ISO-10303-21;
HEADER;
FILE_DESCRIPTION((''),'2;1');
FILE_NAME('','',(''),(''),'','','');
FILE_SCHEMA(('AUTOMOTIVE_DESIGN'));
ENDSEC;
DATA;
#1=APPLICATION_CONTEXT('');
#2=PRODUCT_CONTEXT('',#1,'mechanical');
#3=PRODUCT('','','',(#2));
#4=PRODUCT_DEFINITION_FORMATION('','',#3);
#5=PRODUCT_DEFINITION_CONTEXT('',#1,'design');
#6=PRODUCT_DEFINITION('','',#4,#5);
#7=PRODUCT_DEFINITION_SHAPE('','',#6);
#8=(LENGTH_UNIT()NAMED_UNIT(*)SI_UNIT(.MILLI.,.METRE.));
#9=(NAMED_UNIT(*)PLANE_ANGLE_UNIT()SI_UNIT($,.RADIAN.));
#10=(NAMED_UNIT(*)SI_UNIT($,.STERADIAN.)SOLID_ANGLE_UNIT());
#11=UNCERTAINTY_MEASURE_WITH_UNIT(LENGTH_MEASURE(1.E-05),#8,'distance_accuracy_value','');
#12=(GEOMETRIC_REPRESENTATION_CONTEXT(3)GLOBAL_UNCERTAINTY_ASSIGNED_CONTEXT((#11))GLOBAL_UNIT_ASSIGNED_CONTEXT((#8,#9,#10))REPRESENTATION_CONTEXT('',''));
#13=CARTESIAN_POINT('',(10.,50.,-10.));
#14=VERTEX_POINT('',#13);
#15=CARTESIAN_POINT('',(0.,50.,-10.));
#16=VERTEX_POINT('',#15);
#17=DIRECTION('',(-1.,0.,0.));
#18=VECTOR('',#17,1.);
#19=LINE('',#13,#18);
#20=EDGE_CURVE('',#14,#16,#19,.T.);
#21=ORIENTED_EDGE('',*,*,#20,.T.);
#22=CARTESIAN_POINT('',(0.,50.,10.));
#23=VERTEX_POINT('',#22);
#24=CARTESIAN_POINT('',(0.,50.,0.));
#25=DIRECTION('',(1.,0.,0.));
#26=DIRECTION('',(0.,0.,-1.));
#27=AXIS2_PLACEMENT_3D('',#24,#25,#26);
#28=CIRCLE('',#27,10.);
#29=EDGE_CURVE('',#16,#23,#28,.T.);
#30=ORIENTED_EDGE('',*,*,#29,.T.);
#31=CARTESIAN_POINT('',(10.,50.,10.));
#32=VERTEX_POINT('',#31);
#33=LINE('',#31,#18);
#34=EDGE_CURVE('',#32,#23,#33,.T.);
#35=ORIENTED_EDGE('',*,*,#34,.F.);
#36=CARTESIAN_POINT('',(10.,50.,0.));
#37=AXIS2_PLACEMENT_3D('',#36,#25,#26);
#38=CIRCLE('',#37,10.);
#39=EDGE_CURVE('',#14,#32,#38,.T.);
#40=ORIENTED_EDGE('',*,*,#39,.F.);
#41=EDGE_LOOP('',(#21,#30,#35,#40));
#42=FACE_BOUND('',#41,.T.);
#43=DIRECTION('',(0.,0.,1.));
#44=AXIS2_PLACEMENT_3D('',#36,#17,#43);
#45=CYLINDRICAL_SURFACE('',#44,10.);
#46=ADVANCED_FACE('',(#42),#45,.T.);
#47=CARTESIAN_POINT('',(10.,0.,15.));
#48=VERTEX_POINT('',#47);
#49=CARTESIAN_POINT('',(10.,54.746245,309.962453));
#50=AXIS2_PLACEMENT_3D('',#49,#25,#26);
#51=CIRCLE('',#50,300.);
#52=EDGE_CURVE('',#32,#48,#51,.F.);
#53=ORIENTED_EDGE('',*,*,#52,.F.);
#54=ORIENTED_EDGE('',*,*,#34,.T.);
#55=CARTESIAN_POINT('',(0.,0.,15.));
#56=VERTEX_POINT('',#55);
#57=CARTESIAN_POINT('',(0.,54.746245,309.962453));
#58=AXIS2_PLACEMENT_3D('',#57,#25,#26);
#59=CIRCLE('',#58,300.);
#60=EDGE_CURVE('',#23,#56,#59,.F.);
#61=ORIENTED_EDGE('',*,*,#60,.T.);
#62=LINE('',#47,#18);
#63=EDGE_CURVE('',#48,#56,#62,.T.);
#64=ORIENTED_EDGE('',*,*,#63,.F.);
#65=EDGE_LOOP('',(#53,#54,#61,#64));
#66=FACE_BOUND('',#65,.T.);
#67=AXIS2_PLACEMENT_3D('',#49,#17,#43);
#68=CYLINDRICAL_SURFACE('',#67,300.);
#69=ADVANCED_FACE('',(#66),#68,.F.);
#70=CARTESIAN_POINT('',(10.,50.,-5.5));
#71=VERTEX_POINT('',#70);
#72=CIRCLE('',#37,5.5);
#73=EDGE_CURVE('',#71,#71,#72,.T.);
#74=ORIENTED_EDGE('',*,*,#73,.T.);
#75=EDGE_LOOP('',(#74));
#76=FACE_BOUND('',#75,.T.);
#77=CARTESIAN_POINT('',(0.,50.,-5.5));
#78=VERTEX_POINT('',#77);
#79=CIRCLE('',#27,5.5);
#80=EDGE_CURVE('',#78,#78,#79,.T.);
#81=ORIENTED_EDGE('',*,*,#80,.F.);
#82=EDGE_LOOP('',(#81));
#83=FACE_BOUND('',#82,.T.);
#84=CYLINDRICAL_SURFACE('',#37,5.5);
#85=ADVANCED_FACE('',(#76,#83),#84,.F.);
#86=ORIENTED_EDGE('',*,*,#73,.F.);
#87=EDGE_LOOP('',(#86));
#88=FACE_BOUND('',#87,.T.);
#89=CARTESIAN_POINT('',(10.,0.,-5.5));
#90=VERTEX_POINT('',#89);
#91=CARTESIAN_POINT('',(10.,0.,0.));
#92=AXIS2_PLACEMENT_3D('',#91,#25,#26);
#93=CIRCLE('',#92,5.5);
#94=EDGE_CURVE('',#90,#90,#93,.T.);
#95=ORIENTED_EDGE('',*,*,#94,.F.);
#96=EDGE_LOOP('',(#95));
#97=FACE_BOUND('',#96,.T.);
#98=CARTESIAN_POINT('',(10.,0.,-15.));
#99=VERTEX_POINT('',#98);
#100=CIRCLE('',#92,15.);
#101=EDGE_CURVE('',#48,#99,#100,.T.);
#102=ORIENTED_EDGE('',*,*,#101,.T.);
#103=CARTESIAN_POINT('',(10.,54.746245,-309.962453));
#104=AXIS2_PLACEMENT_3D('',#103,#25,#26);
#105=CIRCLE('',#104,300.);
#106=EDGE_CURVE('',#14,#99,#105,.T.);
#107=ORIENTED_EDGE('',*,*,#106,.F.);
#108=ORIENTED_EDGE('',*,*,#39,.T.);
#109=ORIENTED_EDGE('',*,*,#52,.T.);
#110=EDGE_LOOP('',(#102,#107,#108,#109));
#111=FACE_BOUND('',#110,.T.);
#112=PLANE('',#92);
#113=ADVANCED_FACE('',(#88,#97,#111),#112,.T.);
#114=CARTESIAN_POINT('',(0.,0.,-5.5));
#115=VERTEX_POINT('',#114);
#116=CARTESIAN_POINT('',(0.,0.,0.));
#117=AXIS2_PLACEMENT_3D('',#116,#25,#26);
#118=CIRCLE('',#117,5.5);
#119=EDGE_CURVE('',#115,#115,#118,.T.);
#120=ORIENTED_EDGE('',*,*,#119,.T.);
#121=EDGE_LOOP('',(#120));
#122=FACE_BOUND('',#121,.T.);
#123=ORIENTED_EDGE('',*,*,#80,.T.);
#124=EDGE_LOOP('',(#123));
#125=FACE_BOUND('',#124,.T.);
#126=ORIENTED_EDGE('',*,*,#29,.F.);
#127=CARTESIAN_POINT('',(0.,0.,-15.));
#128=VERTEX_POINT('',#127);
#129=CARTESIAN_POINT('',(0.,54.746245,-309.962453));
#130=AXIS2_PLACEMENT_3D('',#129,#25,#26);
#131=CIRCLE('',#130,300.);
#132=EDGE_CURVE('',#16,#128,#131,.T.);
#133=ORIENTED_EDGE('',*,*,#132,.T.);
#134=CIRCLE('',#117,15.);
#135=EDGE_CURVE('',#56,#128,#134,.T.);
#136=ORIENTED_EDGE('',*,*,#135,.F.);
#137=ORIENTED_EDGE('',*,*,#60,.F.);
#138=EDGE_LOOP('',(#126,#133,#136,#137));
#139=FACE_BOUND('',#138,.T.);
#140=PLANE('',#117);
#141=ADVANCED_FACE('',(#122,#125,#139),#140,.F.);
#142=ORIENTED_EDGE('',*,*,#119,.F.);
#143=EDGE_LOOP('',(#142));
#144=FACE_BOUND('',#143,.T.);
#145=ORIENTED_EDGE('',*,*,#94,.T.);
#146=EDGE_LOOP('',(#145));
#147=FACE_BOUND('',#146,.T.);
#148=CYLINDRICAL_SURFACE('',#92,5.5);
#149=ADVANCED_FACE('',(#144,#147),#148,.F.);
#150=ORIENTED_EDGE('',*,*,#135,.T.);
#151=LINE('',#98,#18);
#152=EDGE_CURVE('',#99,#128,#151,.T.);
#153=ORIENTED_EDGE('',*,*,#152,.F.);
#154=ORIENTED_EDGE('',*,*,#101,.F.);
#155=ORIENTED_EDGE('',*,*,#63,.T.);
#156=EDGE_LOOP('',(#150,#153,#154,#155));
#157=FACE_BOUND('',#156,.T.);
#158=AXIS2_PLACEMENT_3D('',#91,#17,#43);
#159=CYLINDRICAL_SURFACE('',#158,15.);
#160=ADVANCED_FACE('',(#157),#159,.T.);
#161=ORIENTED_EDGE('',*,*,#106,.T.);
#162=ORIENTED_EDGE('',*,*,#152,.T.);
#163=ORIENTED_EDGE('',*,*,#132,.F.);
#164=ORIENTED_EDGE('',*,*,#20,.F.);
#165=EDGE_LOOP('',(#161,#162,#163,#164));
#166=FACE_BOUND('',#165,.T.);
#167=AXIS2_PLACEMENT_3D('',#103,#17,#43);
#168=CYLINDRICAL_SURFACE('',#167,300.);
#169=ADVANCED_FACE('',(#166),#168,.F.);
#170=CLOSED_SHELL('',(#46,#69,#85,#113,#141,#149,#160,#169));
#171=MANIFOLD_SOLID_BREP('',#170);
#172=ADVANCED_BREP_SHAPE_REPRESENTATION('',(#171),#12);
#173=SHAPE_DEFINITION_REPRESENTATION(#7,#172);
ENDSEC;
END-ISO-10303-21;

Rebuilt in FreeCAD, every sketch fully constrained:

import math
import FreeCAD as App
import Part
import Sketcher
from FreeCAD import Vector
Q = App.Units.Quantity

doc = App.newDocument("Part")
body = doc.addObject("PartDesign::Body", "Body")

# Sketch on YZ plane
sketch1 = body.newObject("Sketcher::SketchObject", "Sketch")
sketch1.AttachmentSupport = (doc.getObject("YZ_Plane"), [""])
sketch1.MapMode = "FlatFace"
sketch1.addGeometry([
    Part.ArcOfCircle(Part.Circle(Vector(54.746245, 309.962453, 0), Vector(0, 0, 1), 300), math.radians(-99.518124), math.radians(-90.906504)),  # 0
    Part.ArcOfCircle(Part.Circle(Vector(54.746248, 309.96247, 0), Vector(0, 0, 1), 300.000017), math.radians(-100.514682), math.radians(-99.518124)),  # 1
    Part.ArcOfCircle(Part.Circle(Vector(0, 0, 0), Vector(0, 0, 1), 15), math.radians(90), math.radians(270)),  # 2
    Part.ArcOfCircle(Part.Circle(Vector(54.746248, -309.96247, 0), Vector(0, 0, 1), 300.000017), math.radians(99.518124), math.radians(100.514682)),  # 3
    Part.ArcOfCircle(Part.Circle(Vector(54.746245, -309.962453, 0), Vector(0, 0, 1), 300), math.radians(90.906504), math.radians(99.518124)),  # 4
    Part.ArcOfCircle(Part.Circle(Vector(50, 0, 0), Vector(0, 0, 1), 10), math.radians(-90), math.radians(90)),  # 5
], False)
sketch1.addConstraint([
    Sketcher.Constraint("Tangent", 0, 1, 1, 2),
    Sketcher.Constraint("Coincident", 1, 1, 2, 1),
    Sketcher.Constraint("Coincident", 2, 2, 3, 2),
    Sketcher.Constraint("Tangent", 3, 1, 4, 2),
    Sketcher.Constraint("Coincident", 4, 1, 5, 1),
    Sketcher.Constraint("Coincident", 5, 2, 0, 2),
    Sketcher.Constraint("Coincident", 2, 3, -1, 1),
    Sketcher.Constraint("Equal", 1, 3),
    Sketcher.Constraint("Equal", 0, 4),
    Sketcher.Constraint("Symmetric", 1, 3, 3, 3, -1),
    Sketcher.Constraint("PointOnObject", 5, 3, -1),
    Sketcher.Constraint("PointOnObject", 1, 1, -2),
    Sketcher.Constraint("Vertical", 0, 1, 3, 1),
    Sketcher.Constraint("Vertical", 5, 3, 4, 1),
    Sketcher.Constraint("Radius", 0, Q("300 mm")),
    Sketcher.Constraint("Radius", 2, Q("15 mm")),
    Sketcher.Constraint("Radius", 5, Q("10 mm")),
    Sketcher.Constraint("DistanceX", -1, 1, 5, 3, Q("50 mm")),
    Sketcher.Constraint("Radius", 1, Q("300.000017 mm")),
    Sketcher.Constraint("DistanceY", 3, 1, 0, 1, Q("28.184899 mm")),
])
pad1 = body.newObject("PartDesign::Pad", "Pad")
pad1.Profile = sketch1
pad1.Length = 10

# Sketch on YZ plane
sketch2 = body.newObject("Sketcher::SketchObject", "Sketch001")
sketch2.AttachmentSupport = (doc.getObject("YZ_Plane"), [""])
sketch2.MapMode = "FlatFace"
sketch2.AttachmentOffset = App.Placement(Vector(0, 0, 10), App.Rotation())
sketch2.addGeometry([
    Part.Circle(Vector(50, 0, 0), Vector(0, 0, 1), 5.5),
    Part.Circle(Vector(0, 0, 0), Vector(0, 0, 1), 5.5),
], False)
sketch2.addConstraint([
    Sketcher.Constraint("Coincident", 1, 3, -1, 1),
    Sketcher.Constraint("Equal", 0, 1),
    Sketcher.Constraint("PointOnObject", 0, 3, -1),
    Sketcher.Constraint("Diameter", 0, Q("11 mm")),
    Sketcher.Constraint("DistanceX", -1, 1, 0, 3, Q("50 mm")),
])
doc.recompute()
hole = body.newObject("PartDesign::Hole", "Hole")
hole.Profile = sketch2
hole.ThreadType = "None"
hole.Diameter = 11
hole.DepthType = "ThroughAll"

# Sketch on YZ plane
sketch3 = body.newObject("Sketcher::SketchObject", "Sketch002")
sketch3.AttachmentSupport = (doc.getObject("YZ_Plane"), [""])
sketch3.MapMode = "FlatFace"
sketch3.addGeometry(Part.Circle(Vector(0, 0, 0), Vector(0, 0, 1), 5.5), False)
sketch3.addConstraint([
    Sketcher.Constraint("Coincident", 0, 3, -1, 1),
    Sketcher.Constraint("Diameter", 0, Q("11 mm")),
])
doc.recompute()
hole2 = body.newObject("PartDesign::Hole", "Hole001")
hole2.Profile = sketch3
hole2.ThreadType = "None"
hole2.Diameter = 11
hole2.DepthType = "ThroughAll"
hole2.Reversed = True

doc.recompute()
